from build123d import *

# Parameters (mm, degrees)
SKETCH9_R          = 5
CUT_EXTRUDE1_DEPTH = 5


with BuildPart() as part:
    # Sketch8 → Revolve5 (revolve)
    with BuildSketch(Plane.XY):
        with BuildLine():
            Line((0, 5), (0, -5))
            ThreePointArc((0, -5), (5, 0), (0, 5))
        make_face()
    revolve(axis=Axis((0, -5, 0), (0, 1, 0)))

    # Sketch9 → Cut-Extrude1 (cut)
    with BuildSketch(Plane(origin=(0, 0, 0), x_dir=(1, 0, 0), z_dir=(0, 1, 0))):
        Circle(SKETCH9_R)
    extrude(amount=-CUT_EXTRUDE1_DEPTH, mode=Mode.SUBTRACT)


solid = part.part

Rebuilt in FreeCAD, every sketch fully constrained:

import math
import FreeCAD as App
import Part
import Sketcher

doc = App.newDocument("Part")
params = doc.addObject("Spreadsheet::Sheet", "Params")
for row, (alias, value) in enumerate([
    ("sketch1_radius", "5 mm"),
    ("revolution_angle", "360 deg"),
    ("sketch2_diameter", "10 mm"),
    ("pocket1_length", "5 mm"),
], start=1):
    params.set(f"A{row}", alias)
    params.set(f"B{row}", "=" + value)
    params.setAlias(f"B{row}", alias)

body = doc.addObject("PartDesign::Body", "Body")

# Sketch on XY plane
sketch1 = doc.addObject("Sketcher::SketchObject", "Sketch")
body.addObject(sketch1)
sketch1.AttachmentSupport = (doc.XY_Plane, [""])
sketch1.MapMode = "FlatFace"
sketch1.addGeometry([
    Part.LineSegment(App.Vector(0, 5, 0), App.Vector(0, -5, 0)),
    Part.ArcOfCircle(Part.Circle(App.Vector(0, 0, 0), App.Vector(0, 0, 1), 5), math.radians(-90), math.radians(90)),
], False)
sketch1.addConstraint([
    Sketcher.Constraint("Coincident", 0, 1, 1, 2),
    Sketcher.Constraint("Coincident", 1, 1, 0, 2),
    Sketcher.Constraint("Vertical", 0),
    Sketcher.Constraint("Coincident", 1, 3, -1, 1),
    Sketcher.Constraint("PointOnObject", 0, 1, -2),
    Sketcher.Constraint("Radius", 1, 5.0),
])
sketch1.setExpression("Constraints[5]", "Params.sketch1_radius")
revolution = doc.addObject("PartDesign::Revolution", "Revolution")
body.addObject(revolution)
revolution.Profile = sketch1
revolution.ReferenceAxis = (sketch1, ["V_Axis"])
revolution.setExpression("Angle", "Params.revolution_angle")

# Sketch on XZ plane
sketch2 = doc.addObject("Sketcher::SketchObject", "Sketch001")
body.addObject(sketch2)
sketch2.AttachmentSupport = (doc.XZ_Plane, [""])
sketch2.MapMode = "FlatFace"
sketch2.addGeometry(Part.Circle(App.Vector(0, 0, 0), App.Vector(0, 0, 1), 5), False)
sketch2.addConstraint([
    Sketcher.Constraint("Coincident", 0, 3, -1, 1),
    Sketcher.Constraint("Diameter", 0, 10.0),
])
sketch2.setExpression("Constraints[1]", "Params.sketch2_diameter")
pocket1 = doc.addObject("PartDesign::Pocket", "Pocket")
body.addObject(pocket1)
pocket1.Profile = sketch2
pocket1.setExpression("Length", "Params.pocket1_length")
pocket1.Reversed = True

doc.recompute()
